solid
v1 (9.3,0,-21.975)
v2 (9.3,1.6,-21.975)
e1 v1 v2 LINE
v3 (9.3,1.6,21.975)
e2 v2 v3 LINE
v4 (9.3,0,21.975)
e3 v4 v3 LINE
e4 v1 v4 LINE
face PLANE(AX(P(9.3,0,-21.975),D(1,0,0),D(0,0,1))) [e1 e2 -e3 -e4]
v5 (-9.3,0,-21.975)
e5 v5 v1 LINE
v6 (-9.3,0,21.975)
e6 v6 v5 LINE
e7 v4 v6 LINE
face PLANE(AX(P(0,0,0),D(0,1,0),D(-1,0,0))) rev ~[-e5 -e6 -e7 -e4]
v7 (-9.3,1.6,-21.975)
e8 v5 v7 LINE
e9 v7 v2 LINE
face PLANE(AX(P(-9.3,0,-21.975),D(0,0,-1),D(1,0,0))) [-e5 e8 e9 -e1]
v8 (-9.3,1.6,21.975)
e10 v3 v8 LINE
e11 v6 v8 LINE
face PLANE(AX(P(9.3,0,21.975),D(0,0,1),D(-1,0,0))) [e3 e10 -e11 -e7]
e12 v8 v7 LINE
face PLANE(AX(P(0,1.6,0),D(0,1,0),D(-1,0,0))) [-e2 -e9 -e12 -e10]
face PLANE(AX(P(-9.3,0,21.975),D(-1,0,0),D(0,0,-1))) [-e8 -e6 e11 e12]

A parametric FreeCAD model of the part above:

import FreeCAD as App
import Part
import Sketcher
Q = App.Units.Quantity

doc = App.newDocument("Part")
params = doc.addObject("Spreadsheet::Sheet", "Params")
for row, (alias, value) in enumerate([
    ("sketch1_width", "18.6 mm"),
    ("sketch1_height", "43.95 mm"),
    ("pad1_length", "1.6 mm"),
], start=1):
    params.set(f"A{row}", alias)
    params.set(f"B{row}", "=" + value)
    params.setAlias(f"B{row}", alias)

body = doc.addObject("PartDesign::Body", "Body")

# Sketch on XZ plane
sketch1 = doc.addObject("Sketcher::SketchObject", "Sketch")
body.addObject(sketch1)
sketch1.AttachmentSupport = (doc.XZ_Plane, [""])
sketch1.MapMode = "FlatFace"
sketch1.addGeometry(Part.LineSegment(App.Vector(-9.3, 21.975, 0), App.Vector(9.3, 21.975, 0)), False)
sketch1.addGeometry(Part.LineSegment(App.Vector(9.3, 21.975, 0), App.Vector(9.3, -21.975, 0)), False)
sketch1.addGeometry(Part.LineSegment(App.Vector(9.3, -21.975, 0), App.Vector(-9.3, -21.975, 0)), False)
sketch1.addGeometry(Part.LineSegment(App.Vector(-9.3, -21.975, 0), App.Vector(-9.3, 21.975, 0)), False)
sketch1.addConstraint(Sketcher.Constraint("Coincident", 0, 2, 1, 1))
sketch1.addConstraint(Sketcher.Constraint("Coincident", 1, 2, 2, 1))
sketch1.addConstraint(Sketcher.Constraint("Coincident", 2, 2, 3, 1))
sketch1.addConstraint(Sketcher.Constraint("Coincident", 3, 2, 0, 1))
sketch1.addConstraint(Sketcher.Constraint("Horizontal", 0))
sketch1.addConstraint(Sketcher.Constraint("Vertical", 1))
sketch1.addConstraint(Sketcher.Constraint("Horizontal", 2))
sketch1.addConstraint(Sketcher.Constraint("Vertical", 3))
sketch1.addConstraint(Sketcher.Constraint("Symmetric", 0, 2, 2, 2, -1, 1))
sketch1.addConstraint(Sketcher.Constraint("DistanceX", 0, 1, 0, 2, Q("18.6 mm")))
sketch1.addConstraint(Sketcher.Constraint("DistanceY", 1, 2, 1, 1, Q("43.95 mm")))
sketch1.setExpression("Constraints[9]", "Params.sketch1_width")
sketch1.setExpression("Constraints[10]", "Params.sketch1_height")
pad1 = doc.addObject("PartDesign::Pad", "Pad")
body.addObject(pad1)
pad1.Profile = sketch1
pad1.setExpression("Length", "Params.pad1_length")
pad1.Reversed = True

doc.recompute()
